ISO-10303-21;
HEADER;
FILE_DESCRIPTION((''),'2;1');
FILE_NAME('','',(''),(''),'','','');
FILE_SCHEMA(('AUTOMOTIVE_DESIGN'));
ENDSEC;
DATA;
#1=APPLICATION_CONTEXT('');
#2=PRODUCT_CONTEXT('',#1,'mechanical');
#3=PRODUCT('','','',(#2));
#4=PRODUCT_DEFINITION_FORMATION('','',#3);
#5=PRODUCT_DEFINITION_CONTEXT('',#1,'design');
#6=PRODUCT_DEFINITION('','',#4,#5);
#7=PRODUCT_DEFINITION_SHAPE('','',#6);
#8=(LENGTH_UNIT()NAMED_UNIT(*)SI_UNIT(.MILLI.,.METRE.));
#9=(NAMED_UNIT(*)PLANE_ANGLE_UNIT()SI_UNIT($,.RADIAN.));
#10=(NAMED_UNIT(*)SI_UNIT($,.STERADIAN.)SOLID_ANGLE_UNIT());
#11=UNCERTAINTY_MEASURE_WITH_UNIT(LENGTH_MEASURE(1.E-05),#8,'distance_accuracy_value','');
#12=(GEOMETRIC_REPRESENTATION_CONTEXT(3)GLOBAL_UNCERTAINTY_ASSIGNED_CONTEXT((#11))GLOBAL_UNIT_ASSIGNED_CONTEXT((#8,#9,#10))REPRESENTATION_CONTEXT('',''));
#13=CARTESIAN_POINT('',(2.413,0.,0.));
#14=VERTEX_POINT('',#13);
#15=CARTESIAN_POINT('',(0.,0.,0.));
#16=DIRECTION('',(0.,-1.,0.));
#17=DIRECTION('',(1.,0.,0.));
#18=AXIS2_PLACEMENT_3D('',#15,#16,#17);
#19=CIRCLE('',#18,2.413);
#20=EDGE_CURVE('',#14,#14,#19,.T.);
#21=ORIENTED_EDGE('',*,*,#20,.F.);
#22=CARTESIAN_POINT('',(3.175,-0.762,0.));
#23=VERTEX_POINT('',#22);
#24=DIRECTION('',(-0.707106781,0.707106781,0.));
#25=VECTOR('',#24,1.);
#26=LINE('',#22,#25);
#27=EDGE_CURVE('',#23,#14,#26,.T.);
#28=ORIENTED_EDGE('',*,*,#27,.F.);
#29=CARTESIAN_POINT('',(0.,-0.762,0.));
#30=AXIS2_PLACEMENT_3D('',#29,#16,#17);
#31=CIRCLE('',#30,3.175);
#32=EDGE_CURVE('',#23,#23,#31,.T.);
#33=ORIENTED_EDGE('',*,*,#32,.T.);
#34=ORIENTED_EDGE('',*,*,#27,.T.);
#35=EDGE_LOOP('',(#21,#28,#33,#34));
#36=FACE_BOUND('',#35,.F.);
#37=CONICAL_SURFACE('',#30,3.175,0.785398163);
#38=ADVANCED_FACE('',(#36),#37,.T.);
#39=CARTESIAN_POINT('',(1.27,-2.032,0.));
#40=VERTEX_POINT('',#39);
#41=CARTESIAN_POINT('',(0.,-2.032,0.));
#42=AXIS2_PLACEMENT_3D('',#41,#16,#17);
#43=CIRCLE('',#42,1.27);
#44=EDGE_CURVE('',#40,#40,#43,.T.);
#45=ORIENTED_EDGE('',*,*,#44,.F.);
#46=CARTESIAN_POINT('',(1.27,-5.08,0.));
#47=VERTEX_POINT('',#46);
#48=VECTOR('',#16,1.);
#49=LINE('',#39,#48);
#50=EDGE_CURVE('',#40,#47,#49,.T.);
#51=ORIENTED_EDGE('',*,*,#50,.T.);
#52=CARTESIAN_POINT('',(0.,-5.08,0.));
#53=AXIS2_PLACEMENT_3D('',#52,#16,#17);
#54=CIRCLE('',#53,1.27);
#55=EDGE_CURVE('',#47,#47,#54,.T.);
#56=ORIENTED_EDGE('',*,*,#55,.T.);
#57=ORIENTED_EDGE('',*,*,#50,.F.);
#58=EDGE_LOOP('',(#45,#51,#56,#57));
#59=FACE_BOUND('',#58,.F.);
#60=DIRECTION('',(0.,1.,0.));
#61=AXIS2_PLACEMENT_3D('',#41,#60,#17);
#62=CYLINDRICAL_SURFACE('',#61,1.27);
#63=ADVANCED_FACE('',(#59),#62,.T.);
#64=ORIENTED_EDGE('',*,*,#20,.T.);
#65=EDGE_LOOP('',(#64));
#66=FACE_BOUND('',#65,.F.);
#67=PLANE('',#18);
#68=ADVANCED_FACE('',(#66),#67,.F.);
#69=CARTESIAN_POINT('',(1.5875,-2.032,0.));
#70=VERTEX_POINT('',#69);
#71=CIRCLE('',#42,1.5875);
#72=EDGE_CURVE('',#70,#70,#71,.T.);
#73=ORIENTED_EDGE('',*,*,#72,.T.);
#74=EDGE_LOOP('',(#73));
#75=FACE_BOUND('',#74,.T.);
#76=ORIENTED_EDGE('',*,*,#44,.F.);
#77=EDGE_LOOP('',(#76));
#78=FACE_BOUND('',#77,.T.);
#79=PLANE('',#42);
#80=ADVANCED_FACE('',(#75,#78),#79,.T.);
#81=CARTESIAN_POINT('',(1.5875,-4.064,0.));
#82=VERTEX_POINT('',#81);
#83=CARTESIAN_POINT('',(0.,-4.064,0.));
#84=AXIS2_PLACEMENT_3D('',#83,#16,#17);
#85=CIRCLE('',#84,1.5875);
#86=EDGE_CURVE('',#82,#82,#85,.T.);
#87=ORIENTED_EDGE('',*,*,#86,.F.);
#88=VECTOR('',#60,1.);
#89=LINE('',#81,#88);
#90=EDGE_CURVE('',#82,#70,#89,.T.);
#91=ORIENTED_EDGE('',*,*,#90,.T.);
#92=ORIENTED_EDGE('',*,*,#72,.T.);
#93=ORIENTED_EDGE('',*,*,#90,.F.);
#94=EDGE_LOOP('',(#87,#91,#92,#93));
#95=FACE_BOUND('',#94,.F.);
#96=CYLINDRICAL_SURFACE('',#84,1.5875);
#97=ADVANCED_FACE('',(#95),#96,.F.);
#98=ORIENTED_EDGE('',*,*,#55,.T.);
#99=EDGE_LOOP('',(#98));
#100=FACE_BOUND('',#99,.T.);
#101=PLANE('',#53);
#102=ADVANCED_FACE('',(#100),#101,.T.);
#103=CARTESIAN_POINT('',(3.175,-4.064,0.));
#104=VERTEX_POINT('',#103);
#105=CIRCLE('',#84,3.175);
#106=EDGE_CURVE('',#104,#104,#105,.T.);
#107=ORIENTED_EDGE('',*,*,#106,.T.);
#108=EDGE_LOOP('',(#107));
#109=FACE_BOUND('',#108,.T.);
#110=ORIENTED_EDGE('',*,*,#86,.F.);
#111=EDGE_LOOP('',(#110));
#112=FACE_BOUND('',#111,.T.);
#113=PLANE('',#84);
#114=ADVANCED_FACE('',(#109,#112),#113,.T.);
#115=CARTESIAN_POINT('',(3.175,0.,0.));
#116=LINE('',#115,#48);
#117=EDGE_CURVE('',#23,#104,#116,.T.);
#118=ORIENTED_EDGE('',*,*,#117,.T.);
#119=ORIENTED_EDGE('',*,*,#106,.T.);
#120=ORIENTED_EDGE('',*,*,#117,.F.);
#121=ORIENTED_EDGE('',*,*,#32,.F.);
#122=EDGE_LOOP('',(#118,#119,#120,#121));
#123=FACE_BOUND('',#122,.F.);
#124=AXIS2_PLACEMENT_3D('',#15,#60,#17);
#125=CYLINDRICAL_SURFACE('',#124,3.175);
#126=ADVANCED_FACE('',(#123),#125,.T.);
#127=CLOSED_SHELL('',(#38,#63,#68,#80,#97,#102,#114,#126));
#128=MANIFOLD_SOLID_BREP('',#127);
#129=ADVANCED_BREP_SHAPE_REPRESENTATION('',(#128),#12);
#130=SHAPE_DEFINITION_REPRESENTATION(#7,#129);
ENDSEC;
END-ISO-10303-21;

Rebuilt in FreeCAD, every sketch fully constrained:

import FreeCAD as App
import Part
import Sketcher

V = App.Vector
Q = App.Units.Quantity


def edges_at(feature, points):
    """Names of the edges that pass closest to the given points."""
    edges = feature.Shape.Edges
    near = lambda p: min(range(len(edges)), key=lambda i: edges[i].distToShape(Part.Vertex(*p))[0])
    return sorted({f"Edge{near(p) + 1}" for p in points})

doc = App.newDocument("Part")
params = doc.addObject("Spreadsheet::Sheet", "Params")
for row, (alias, value) in enumerate([
    ("sketch1_diameter", "0.25 in"),
    ("pad1_length", "0.16 in"),
    ("sketch2_diameter", "0.125 in"),
    ("pocket1_length", "0.08 in"),
    ("sketch3_diameter", "0.1 in"),
    ("pad2_length", "0.12 in"),
    ("chamfer_size", "0.03 in"),
], start=1):
    params.set(f"A{row}", alias)
    params.set(f"B{row}", "=" + value)
    params.setAlias(f"B{row}", alias)

body = doc.addObject("PartDesign::Body", "Body")

sketch1 = body.newObject("Sketcher::SketchObject", "Sketch")
sketch1.AttachmentSupport = (doc.getObject("XZ_Plane"), [""])
sketch1.MapMode = "FlatFace"
sketch1.addGeometry(Part.Circle(V(0, 0, 0), V(0, 0, 1), 3.2), False)
sketch1.addConstraint([
    Sketcher.Constraint("Coincident", 0, 3, -1, 1),
    Sketcher.Constraint("Diameter", 0, Q("0.25 in")),
])
sketch1.setExpression("Constraints[1]", "Params.sketch1_diameter")
pad1 = body.newObject("PartDesign::Pad", "Pad")
pad1.Profile = sketch1
pad1.setExpression("Length", "Params.pad1_length")

sketch2 = body.newObject("Sketcher::SketchObject", "Sketch001")
sketch2.AttachmentSupport = (doc.getObject("XZ_Plane"), [""])
sketch2.MapMode = "FlatFace"
sketch2.AttachmentOffset = App.Placement(V(0, 0, 0.16 * 25.4), App.Rotation())
sketch2.addGeometry(Part.Circle(V(0, 0, 0), V(0, 0, 1), 1.6), False)
sketch2.addConstraint([
    Sketcher.Constraint("Coincident", 0, 3, -1, 1),
    Sketcher.Constraint("Diameter", 0, Q("0.125 in")),
])
sketch2.setExpression("Constraints[1]", "Params.sketch2_diameter")
pocket1 = body.newObject("PartDesign::Pocket", "Pocket")
pocket1.Profile = sketch2
pocket1.setExpression("Length", "Params.pocket1_length")

sketch3 = body.newObject("Sketcher::SketchObject", "Sketch002")
sketch3.AttachmentSupport = (doc.getObject("XZ_Plane"), [""])
sketch3.MapMode = "FlatFace"
sketch3.AttachmentOffset = App.Placement(V(0, 0, 0.08 * 25.4), App.Rotation())
sketch3.addGeometry(Part.Circle(V(0, 0, 0), V(0, 0, 1), 1.3), False)
sketch3.addConstraint([
    Sketcher.Constraint("Coincident", 0, 3, -1, 1),
    Sketcher.Constraint("Diameter", 0, Q("0.1 in")),
])
sketch3.setExpression("Constraints[1]", "Params.sketch3_diameter")
pad2 = body.newObject("PartDesign::Pad", "Pad001")
pad2.Profile = sketch3
pad2.setExpression("Length", "Params.pad2_length")
doc.recompute()

chamfer = body.newObject("PartDesign::Chamfer", "Chamfer")
chamfer.Base = (pad2, edges_at(pad2, [(-3.175, 0, 0)]))
chamfer.setExpression("Size", "Params.chamfer_size")

doc.recompute()
